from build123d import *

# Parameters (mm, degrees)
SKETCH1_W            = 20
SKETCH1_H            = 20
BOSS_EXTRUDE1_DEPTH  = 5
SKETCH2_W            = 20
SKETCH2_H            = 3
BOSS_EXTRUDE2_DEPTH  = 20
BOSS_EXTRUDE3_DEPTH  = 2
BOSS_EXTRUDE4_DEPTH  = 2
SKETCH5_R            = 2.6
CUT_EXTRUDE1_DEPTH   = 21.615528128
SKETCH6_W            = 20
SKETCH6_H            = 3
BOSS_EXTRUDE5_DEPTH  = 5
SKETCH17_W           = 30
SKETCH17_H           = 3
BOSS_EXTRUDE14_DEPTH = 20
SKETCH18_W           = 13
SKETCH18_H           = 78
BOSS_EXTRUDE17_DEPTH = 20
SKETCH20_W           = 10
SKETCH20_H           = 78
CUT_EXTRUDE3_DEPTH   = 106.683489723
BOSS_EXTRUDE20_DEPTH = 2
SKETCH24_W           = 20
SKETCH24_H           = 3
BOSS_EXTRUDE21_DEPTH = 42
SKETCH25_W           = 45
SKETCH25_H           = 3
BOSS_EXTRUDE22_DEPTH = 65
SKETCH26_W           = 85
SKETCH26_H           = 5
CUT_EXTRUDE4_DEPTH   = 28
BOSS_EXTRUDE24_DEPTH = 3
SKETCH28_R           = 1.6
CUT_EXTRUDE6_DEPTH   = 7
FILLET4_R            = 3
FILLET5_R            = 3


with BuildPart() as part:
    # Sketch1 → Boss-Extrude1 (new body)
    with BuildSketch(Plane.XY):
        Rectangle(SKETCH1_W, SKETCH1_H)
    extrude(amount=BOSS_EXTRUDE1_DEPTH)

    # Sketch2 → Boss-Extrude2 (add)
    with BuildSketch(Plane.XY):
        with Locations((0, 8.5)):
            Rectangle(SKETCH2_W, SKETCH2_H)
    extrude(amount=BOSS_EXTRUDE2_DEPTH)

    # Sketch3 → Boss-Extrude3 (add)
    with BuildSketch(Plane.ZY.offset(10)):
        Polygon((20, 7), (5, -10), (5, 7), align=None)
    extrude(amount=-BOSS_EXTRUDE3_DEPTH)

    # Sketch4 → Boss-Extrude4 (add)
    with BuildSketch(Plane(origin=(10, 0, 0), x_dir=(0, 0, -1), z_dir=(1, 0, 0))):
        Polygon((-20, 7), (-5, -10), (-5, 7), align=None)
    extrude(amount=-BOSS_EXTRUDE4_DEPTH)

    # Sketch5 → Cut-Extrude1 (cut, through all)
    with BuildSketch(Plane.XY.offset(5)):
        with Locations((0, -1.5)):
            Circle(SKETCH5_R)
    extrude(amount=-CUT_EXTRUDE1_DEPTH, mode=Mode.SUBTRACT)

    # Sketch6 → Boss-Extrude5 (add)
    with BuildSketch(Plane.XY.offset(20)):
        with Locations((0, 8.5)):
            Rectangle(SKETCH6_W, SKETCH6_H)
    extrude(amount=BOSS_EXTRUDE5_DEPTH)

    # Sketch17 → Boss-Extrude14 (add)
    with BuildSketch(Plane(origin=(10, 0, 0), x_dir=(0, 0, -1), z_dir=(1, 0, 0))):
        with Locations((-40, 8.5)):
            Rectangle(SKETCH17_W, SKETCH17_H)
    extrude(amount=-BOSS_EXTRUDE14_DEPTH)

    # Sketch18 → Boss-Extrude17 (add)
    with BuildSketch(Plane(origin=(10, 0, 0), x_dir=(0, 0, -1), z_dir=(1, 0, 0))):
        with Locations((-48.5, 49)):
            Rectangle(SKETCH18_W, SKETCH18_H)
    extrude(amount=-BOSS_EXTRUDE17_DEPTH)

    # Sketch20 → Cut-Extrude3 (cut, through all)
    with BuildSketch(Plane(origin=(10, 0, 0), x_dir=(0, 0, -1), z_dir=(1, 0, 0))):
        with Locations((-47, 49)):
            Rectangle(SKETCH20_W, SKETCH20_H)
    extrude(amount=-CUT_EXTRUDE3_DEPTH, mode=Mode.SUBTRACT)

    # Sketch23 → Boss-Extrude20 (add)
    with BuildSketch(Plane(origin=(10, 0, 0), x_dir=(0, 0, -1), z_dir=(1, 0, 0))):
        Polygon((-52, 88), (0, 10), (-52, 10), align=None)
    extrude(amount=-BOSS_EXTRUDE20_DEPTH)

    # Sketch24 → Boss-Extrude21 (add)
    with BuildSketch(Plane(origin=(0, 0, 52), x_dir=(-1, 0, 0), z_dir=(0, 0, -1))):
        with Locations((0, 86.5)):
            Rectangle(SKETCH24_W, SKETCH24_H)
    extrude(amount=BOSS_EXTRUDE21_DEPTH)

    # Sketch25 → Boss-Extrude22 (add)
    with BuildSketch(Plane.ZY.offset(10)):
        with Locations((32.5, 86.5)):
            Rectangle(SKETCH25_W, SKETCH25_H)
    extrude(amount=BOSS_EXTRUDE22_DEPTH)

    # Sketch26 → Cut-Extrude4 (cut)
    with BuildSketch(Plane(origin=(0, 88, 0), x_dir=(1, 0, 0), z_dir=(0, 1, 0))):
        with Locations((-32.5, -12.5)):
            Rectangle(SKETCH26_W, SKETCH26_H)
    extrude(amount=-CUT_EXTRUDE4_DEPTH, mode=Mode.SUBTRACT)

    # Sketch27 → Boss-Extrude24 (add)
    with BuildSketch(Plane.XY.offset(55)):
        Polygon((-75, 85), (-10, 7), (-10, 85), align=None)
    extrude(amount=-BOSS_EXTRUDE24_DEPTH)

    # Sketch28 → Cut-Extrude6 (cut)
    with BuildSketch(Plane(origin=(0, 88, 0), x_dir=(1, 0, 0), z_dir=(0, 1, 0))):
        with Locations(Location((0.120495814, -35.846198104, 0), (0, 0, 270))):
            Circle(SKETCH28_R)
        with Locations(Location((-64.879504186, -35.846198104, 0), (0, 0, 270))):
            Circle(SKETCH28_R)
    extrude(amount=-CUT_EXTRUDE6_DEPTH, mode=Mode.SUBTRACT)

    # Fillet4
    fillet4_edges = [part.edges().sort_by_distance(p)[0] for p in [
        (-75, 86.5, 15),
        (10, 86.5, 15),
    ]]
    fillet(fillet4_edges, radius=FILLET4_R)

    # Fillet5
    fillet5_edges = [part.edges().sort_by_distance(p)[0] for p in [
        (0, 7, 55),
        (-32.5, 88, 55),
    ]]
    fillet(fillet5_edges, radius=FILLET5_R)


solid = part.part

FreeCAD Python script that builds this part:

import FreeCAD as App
import Part
import Sketcher

V = App.Vector


def edges_at(feature, points):
    """Names of the edges that pass closest to the given points."""
    edges = feature.Shape.Edges
    near = lambda p: min(range(len(edges)), key=lambda i: edges[i].distToShape(Part.Vertex(*p))[0])
    return sorted({f"Edge{near(p) + 1}" for p in points})

doc = App.newDocument("Part")
body = doc.addObject("PartDesign::Body", "Body")

# Sketch on XY plane
sketch1 = body.newObject("Sketcher::SketchObject", "Sketch")
sketch1.AttachmentSupport = (doc.getObject("XY_Plane"), [""])
sketch1.MapMode = "FlatFace"
sketch1.addGeometry([
    Part.LineSegment(V(-10, 10, 0), V(-10, -10, 0)),
    Part.LineSegment(V(-10, -10, 0), V(10, -10, 0)),
    Part.LineSegment(V(10, -10, 0), V(10, 10, 0)),
    Part.LineSegment(V(10, 10, 0), V(-10, 10, 0)),
], False)
sketch1.addConstraint([
    Sketcher.Constraint("Coincident", 0, 2, 1, 1),
    Sketcher.Constraint("Coincident", 1, 2, 2, 1),
    Sketcher.Constraint("Coincident", 2, 2, 3, 1),
    Sketcher.Constraint("Coincident", 3, 2, 0, 1),
    Sketcher.Constraint("Vertical", 0),
    Sketcher.Constraint("Horizontal", 1),
    Sketcher.Constraint("Vertical", 2),
    Sketcher.Constraint("Horizontal", 3),
    Sketcher.Constraint("Symmetric", 0, 2, 2, 2, -1, 1),
    Sketcher.Constraint("Equal", 3, 0),
    Sketcher.Constraint("DistanceX", 1, 1, 1, 2, 20.0),
])
pad1 = body.newObject("PartDesign::Pad", "Pad")
pad1.Profile = sketch1
pad1.Length = 5

# Sketch on XY plane
sketch2 = body.newObject("Sketcher::SketchObject", "Sketch001")
sketch2.AttachmentSupport = (doc.getObject("XY_Plane"), [""])
sketch2.MapMode = "FlatFace"
sketch2.addGeometry([
    Part.LineSegment(V(-10, 10, 0), V(-10, 7, 0)),
    Part.LineSegment(V(-10, 7, 0), V(10, 7, 0)),
    Part.LineSegment(V(10, 7, 0), V(10, 10, 0)),
    Part.LineSegment(V(10, 10, 0), V(-10, 10, 0)),
], False)
sketch2.addConstraint([
    Sketcher.Constraint("Coincident", 0, 2, 1, 1),
    Sketcher.Constraint("Coincident", 1, 2, 2, 1),
    Sketcher.Constraint("Coincident", 2, 2, 3, 1),
    Sketcher.Constraint("Coincident", 3, 2, 0, 1),
    Sketcher.Constraint("Vertical", 0),
    Sketcher.Constraint("Horizontal", 1),
    Sketcher.Constraint("Vertical", 2),
    Sketcher.Constraint("Horizontal", 3),
    Sketcher.Constraint("DistanceX", 1, 1, 1, 2, 20.0),
    Sketcher.Constraint("DistanceY", 0, 2, 0, 1, 3.0),
    Sketcher.Constraint("DistanceX", 0, 2, -1, 1, 10.0),
    Sketcher.Constraint("DistanceY", -1, 1, 0, 2, 7.0),
])
pad2 = body.newObject("PartDesign::Pad", "Pad001")
pad2.Profile = sketch2
pad2.Length = 20

# Sketch on YZ plane
sketch3 = body.newObject("Sketcher::SketchObject", "Sketch002")
sketch3.AttachmentSupport = (doc.getObject("YZ_Plane"), [""])
sketch3.MapMode = "FlatFace"
sketch3.AttachmentOffset = App.Placement(V(0, 0, -10), App.Rotation())
sketch3.addGeometry([
    Part.LineSegment(V(-10, 5, 0), V(7, 20, 0)),
    Part.LineSegment(V(7, 20, 0), V(7, 5, 0)),
    Part.LineSegment(V(7, 5, 0), V(-10, 5, 0)),
], False)
sketch3.addConstraint([
    Sketcher.Constraint("Coincident", 0, 2, 1, 1),
    Sketcher.Constraint("Coincident", 1, 2, 2, 1),
    Sketcher.Constraint("Coincident", 2, 2, 0, 1),
    Sketcher.Constraint("Vertical", 1),
    Sketcher.Constraint("Horizontal", 2),
    Sketcher.Constraint("DistanceX", 2, 2, 2, 1, 17.0),
    Sketcher.Constraint("DistanceY", 1, 2, 1, 1, 15.0),
    Sketcher.Constraint("DistanceX", -1, 1, 0, 2, 7.0),
    Sketcher.Constraint("DistanceY", -1, 1, 0, 2, 20.0),
])
pad3 = body.newObject("PartDesign::Pad", "Pad002")
pad3.Profile = sketch3
pad3.Length = 2

# Sketch on YZ plane
sketch4 = body.newObject("Sketcher::SketchObject", "Sketch003")
sketch4.AttachmentSupport = (doc.getObject("YZ_Plane"), [""])
sketch4.MapMode = "FlatFace"
sketch4.AttachmentOffset = App.Placement(V(0, 0, 10), App.Rotation())
sketch4.addGeometry([
    Part.LineSegment(V(7, 20, 0), V(-10, 5, 0)),
    Part.LineSegment(V(-10, 5, 0), V(7, 5, 0)),
    Part.LineSegment(V(7, 5, 0), V(7, 20, 0)),
], False)
sketch4.addConstraint([
    Sketcher.Constraint("Coincident", 0, 2, 1, 1),
    Sketcher.Constraint("Coincident", 1, 2, 2, 1),
    Sketcher.Constraint("Coincident", 2, 2, 0, 1),
    Sketcher.Constraint("Horizontal", 1),
    Sketcher.Constraint("Vertical", 2),
    Sketcher.Constraint("DistanceX", 1, 1, 1, 2, 17.0),
    Sketcher.Constraint("DistanceY", 2, 1, 2, 2, 15.0),
    Sketcher.Constraint("DistanceX", 0, 2, -1, 1, 10.0),
    Sketcher.Constraint("DistanceY", -1, 1, 0, 2, 5.0),
])
pad4 = body.newObject("PartDesign::Pad", "Pad003")
pad4.Profile = sketch4
pad4.Length = 2
pad4.Reversed = True

# Sketch on XY plane
sketch5 = body.newObject("Sketcher::SketchObject", "Sketch004")
sketch5.AttachmentSupport = (doc.getObject("XY_Plane"), [""])
sketch5.MapMode = "FlatFace"
sketch5.AttachmentOffset = App.Placement(V(0, 0, 5), App.Rotation())
sketch5.addGeometry(Part.Circle(V(0, -1.5, 0), V(0, 0, 1), 2.6), False)
sketch5.addConstraint([
    Sketcher.Constraint("PointOnObject", 0, 3, -2),
    Sketcher.Constraint("Diameter", 0, 5.2),
    Sketcher.Constraint("DistanceY", 0, 3, -1, 1, 1.5),
])
pocket1 = body.newObject("PartDesign::Pocket", "Pocket")
pocket1.Profile = sketch5
pocket1.Type = "ThroughAll"

# Sketch on XY plane
sketch6 = body.newObject("Sketcher::SketchObject", "Sketch005")
sketch6.AttachmentSupport = (doc.getObject("XY_Plane"), [""])
sketch6.MapMode = "FlatFace"
sketch6.AttachmentOffset = App.Placement(V(0, 0, 20), App.Rotation())
sketch6.addGeometry([
    Part.LineSegment(V(-10, 10, 0), V(-10, 7, 0)),
    Part.LineSegment(V(-10, 7, 0), V(10, 7, 0)),
    Part.LineSegment(V(10, 7, 0), V(10, 10, 0)),
    Part.LineSegment(V(10, 10, 0), V(-10, 10, 0)),
], False)
sketch6.addConstraint([
    Sketcher.Constraint("Coincident", 0, 2, 1, 1),
    Sketcher.Constraint("Coincident", 1, 2, 2, 1),
    Sketcher.Constraint("Coincident", 2, 2, 3, 1),
    Sketcher.Constraint("Coincident", 3, 2, 0, 1),
    Sketcher.Constraint("Vertical", 0),
    Sketcher.Constraint("Horizontal", 1),
    Sketcher.Constraint("Vertical", 2),
    Sketcher.Constraint("Horizontal", 3),
    Sketcher.Constraint("DistanceX", 1, 1, 1, 2, 20.0),
    Sketcher.Constraint("DistanceY", 0, 2, 0, 1, 3.0),
    Sketcher.Constraint("DistanceX", 0, 2, -1, 1, 10.0),
    Sketcher.Constraint("DistanceY", -1, 1, 0, 2, 7.0),
])
pad5 = body.newObject("PartDesign::Pad", "Pad004")
pad5.Profile = sketch6
pad5.Length = 5

# Sketch on YZ plane
sketch7 = body.newObject("Sketcher::SketchObject", "Sketch006")
sketch7.AttachmentSupport = (doc.getObject("YZ_Plane"), [""])
sketch7.MapMode = "FlatFace"
sketch7.AttachmentOffset = App.Placement(V(0, 0, 10), App.Rotation())
sketch7.addGeometry([
    Part.LineSegment(V(10, 55, 0), V(7, 55, 0)),
    Part.LineSegment(V(7, 55, 0), V(7, 25, 0)),
    Part.LineSegment(V(7, 25, 0), V(10, 25, 0)),
    Part.LineSegment(V(10, 25, 0), V(10, 55, 0)),
], False)
sketch7.addConstraint([
    Sketcher.Constraint("Coincident", 0, 2, 1, 1),
    Sketcher.Constraint("Coincident", 1, 2, 2, 1),
    Sketcher.Constraint("Coincident", 2, 2, 3, 1),
    Sketcher.Constraint("Coincident", 3, 2, 0, 1),
    Sketcher.Constraint("Horizontal", 0),
    Sketcher.Constraint("Vertical", 1),
    Sketcher.Constraint("Horizontal", 2),
    Sketcher.Constraint("Vertical", 3),
    Sketcher.Constraint("DistanceX", 0, 2, 0, 1, 3.0),
    Sketcher.Constraint("DistanceY", 1, 2, 1, 1, 30.0),
    Sketcher.Constraint("DistanceX", -1, 1, 0, 2, 7.0),
    Sketcher.Constraint("DistanceY", -1, 1, 0, 2, 55.0),
])
pad6 = body.newObject("PartDesign::Pad", "Pad005")
pad6.Profile = sketch7
pad6.Length = 20
pad6.Reversed = True

# Sketch on YZ plane
sketch8 = body.newObject("Sketcher::SketchObject", "Sketch007")
sketch8.AttachmentSupport = (doc.getObject("YZ_Plane"), [""])
sketch8.MapMode = "FlatFace"
sketch8.AttachmentOffset = App.Placement(V(0, 0, 10), App.Rotation())
sketch8.addGeometry([
    Part.LineSegment(V(88, 55, 0), V(10, 55, 0)),
    Part.LineSegment(V(10, 55, 0), V(10, 42, 0)),
    Part.LineSegment(V(10, 42, 0), V(88, 42, 0)),
    Part.LineSegment(V(88, 42, 0), V(88, 55, 0)),
], False)
sketch8.addConstraint([
    Sketcher.Constraint("Coincident", 0, 2, 1, 1),
    Sketcher.Constraint("Coincident", 1, 2, 2, 1),
    Sketcher.Constraint("Coincident", 2, 2, 3, 1),
    Sketcher.Constraint("Coincident", 3, 2, 0, 1),
    Sketcher.Constraint("Horizontal", 0),
    Sketcher.Constraint("Vertical", 1),
    Sketcher.Constraint("Horizontal", 2),
    Sketcher.Constraint("Vertical", 3),
    Sketcher.Constraint("DistanceX", 0, 2, 0, 1, 78.0),
    Sketcher.Constraint("DistanceY", 1, 2, 1, 1, 13.0),
    Sketcher.Constraint("DistanceX", -1, 1, 0, 2, 10.0),
    Sketcher.Constraint("DistanceY", -1, 1, 0, 2, 55.0),
])
pad7 = body.newObject("PartDesign::Pad", "Pad006")
pad7.Profile = sketch8
pad7.Length = 20
pad7.Reversed = True

# Sketch on YZ plane
sketch9 = body.newObject("Sketcher::SketchObject", "Sketch008")
sketch9.AttachmentSupport = (doc.getObject("YZ_Plane"), [""])
sketch9.MapMode = "FlatFace"
sketch9.AttachmentOffset = App.Placement(V(0, 0, 10), App.Rotation())
sketch9.addGeometry([
    Part.LineSegment(V(88, 52, 0), V(10, 52, 0)),
    Part.LineSegment(V(10, 52, 0), V(10, 42, 0)),
    Part.LineSegment(V(10, 42, 0), V(88, 42, 0)),
    Part.LineSegment(V(88, 42, 0), V(88, 52, 0)),
], False)
sketch9.addConstraint([
    Sketcher.Constraint("Coincident", 0, 2, 1, 1),
    Sketcher.Constraint("Coincident", 1, 2, 2, 1),
    Sketcher.Constraint("Coincident", 2, 2, 3, 1),
    Sketcher.Constraint("Coincident", 3, 2, 0, 1),
    Sketcher.Constraint("Horizontal", 0),
    Sketcher.Constraint("Vertical", 1),
    Sketcher.Constraint("Horizontal", 2),
    Sketcher.Constraint("Vertical", 3),
    Sketcher.Constraint("DistanceX", 0, 2, 0, 1, 78.0),
    Sketcher.Constraint("DistanceY", 1, 2, 1, 1, 10.0),
    Sketcher.Constraint("DistanceX", -1, 1, 0, 2, 10.0),
    Sketcher.Constraint("DistanceY", -1, 1, 0, 2, 52.0),
])
pocket2 = body.newObject("PartDesign::Pocket", "Pocket001")
pocket2.Profile = sketch9
pocket2.Type = "ThroughAll"

# Sketch on YZ plane
sketch10 = body.newObject("Sketcher::SketchObject", "Sketch009")
sketch10.AttachmentSupport = (doc.getObject("YZ_Plane"), [""])
sketch10.MapMode = "FlatFace"
sketch10.AttachmentOffset = App.Placement(V(0, 0, 10), App.Rotation())
sketch10.addGeometry([
    Part.LineSegment(V(10, 0, 0), V(88, 52, 0)),
    Part.LineSegment(V(88, 52, 0), V(10, 52, 0)),
    Part.LineSegment(V(10, 52, 0), V(10, 0, 0)),
], False)
sketch10.addConstraint([
    Sketcher.Constraint("Coincident", 0, 2, 1, 1),
    Sketcher.Constraint("Coincident", 1, 2, 2, 1),
    Sketcher.Constraint("Coincident", 2, 2, 0, 1),
    Sketcher.Constraint("Horizontal", 1),
    Sketcher.Constraint("Vertical", 2),
    Sketcher.Constraint("PointOnObject", 2, 2, -1),
    Sketcher.Constraint("DistanceX", 1, 2, 1, 1, 78.0),
    Sketcher.Constraint("DistanceY", 2, 2, 2, 1, 52.0),
    Sketcher.Constraint("DistanceX", -1, 1, 0, 2, 88.0),
])
pad8 = body.newObject("PartDesign::Pad", "Pad007")
pad8.Profile = sketch10
pad8.Length = 2
pad8.Reversed = True

# Sketch on XY plane
sketch11 = body.newObject("Sketcher::SketchObject", "Sketch010")
sketch11.AttachmentSupport = (doc.getObject("XY_Plane"), [""])
sketch11.MapMode = "FlatFace"
sketch11.AttachmentOffset = App.Placement(V(0, 0, 52), App.Rotation())
sketch11.addGeometry([
    Part.LineSegment(V(10, 88, 0), V(10, 85, 0)),
    Part.LineSegment(V(10, 85, 0), V(-10, 85, 0)),
    Part.LineSegment(V(-10, 85, 0), V(-10, 88, 0)),
    Part.LineSegment(V(-10, 88, 0), V(10, 88, 0)),
], False)
sketch11.addConstraint([
    Sketcher.Constraint("Coincident", 0, 2, 1, 1),
    Sketcher.Constraint("Coincident", 1, 2, 2, 1),
    Sketcher.Constraint("Coincident", 2, 2, 3, 1),
    Sketcher.Constraint("Coincident", 3, 2, 0, 1),
    Sketcher.Constraint("Vertical", 0),
    Sketcher.Constraint("Horizontal", 1),
    Sketcher.Constraint("Vertical", 2),
    Sketcher.Constraint("Horizontal", 3),
    Sketcher.Constraint("DistanceX", 1, 2, 1, 1, 20.0),
    Sketcher.Constraint("DistanceY", 0, 2, 0, 1, 3.0),
    Sketcher.Constraint("DistanceX", -1, 1, 0, 2, 10.0),
    Sketcher.Constraint("DistanceY", -1, 1, 0, 2, 85.0),
])
pad9 = body.newObject("PartDesign::Pad", "Pad008")
pad9.Profile = sketch11
pad9.Length = 42
pad9.Reversed = True

# Sketch on YZ plane
sketch12 = body.newObject("Sketcher::SketchObject", "Sketch011")
sketch12.AttachmentSupport = (doc.getObject("YZ_Plane"), [""])
sketch12.MapMode = "FlatFace"
sketch12.AttachmentOffset = App.Placement(V(0, 0, -10), App.Rotation())
sketch12.addGeometry([
    Part.LineSegment(V(88, 10, 0), V(85, 10, 0)),
    Part.LineSegment(V(85, 10, 0), V(85, 55, 0)),
    Part.LineSegment(V(85, 55, 0), V(88, 55, 0)),
    Part.LineSegment(V(88, 55, 0), V(88, 10, 0)),
], False)
sketch12.addConstraint([
    Sketcher.Constraint("Coincident", 0, 2, 1, 1),
    Sketcher.Constraint("Coincident", 1, 2, 2, 1),
    Sketcher.Constraint("Coincident", 2, 2, 3, 1),
    Sketcher.Constraint("Coincident", 3, 2, 0, 1),
    Sketcher.Constraint("Horizontal", 0),
    Sketcher.Constraint("Vertical", 1),
    Sketcher.Constraint("Horizontal", 2),
    Sketcher.Constraint("Vertical", 3),
    Sketcher.Constraint("DistanceX", 0, 2, 0, 1, 3.0),
    Sketcher.Constraint("DistanceY", 1, 1, 1, 2, 45.0),
    Sketcher.Constraint("DistanceX", -1, 1, 0, 2, 85.0),
    Sketcher.Constraint("DistanceY", -1, 1, 0, 2, 10.0),
])
pad10 = body.newObject("PartDesign::Pad", "Pad009")
pad10.Profile = sketch12
pad10.Length = 65
pad10.Reversed = True

# Sketch on XZ plane
sketch13 = body.newObject("Sketcher::SketchObject", "Sketch012")
sketch13.AttachmentSupport = (doc.getObject("XZ_Plane"), [""])
sketch13.MapMode = "FlatFace"
sketch13.AttachmentOffset = App.Placement(V(0, 0, -88), App.Rotation())
sketch13.addGeometry([
    Part.LineSegment(V(-75, 10, 0), V(-75, 15, 0)),
    Part.LineSegment(V(-75, 15, 0), V(10, 15, 0)),
    Part.LineSegment(V(10, 15, 0), V(10, 10, 0)),
    Part.LineSegment(V(10, 10, 0), V(-75, 10, 0)),
], False)
sketch13.addConstraint([
    Sketcher.Constraint("Coincident", 0, 2, 1, 1),
    Sketcher.Constraint("Coincident", 1, 2, 2, 1),
    Sketcher.Constraint("Coincident", 2, 2, 3, 1),
    Sketcher.Constraint("Coincident", 3, 2, 0, 1),
    Sketcher.Constraint("Vertical", 0),
    Sketcher.Constraint("Horizontal", 1),
    Sketcher.Constraint("Vertical", 2),
    Sketcher.Constraint("Horizontal", 3),
    Sketcher.Constraint("DistanceX", 1, 1, 1, 2, 85.0),
    Sketcher.Constraint("DistanceY", 0, 1, 0, 2, 5.0),
    Sketcher.Constraint("DistanceX", 0, 2, -1, 1, 75.0),
    Sketcher.Constraint("DistanceY", -1, 1, 0, 2, 15.0),
])
pocket3 = body.newObject("PartDesign::Pocket", "Pocket002")
pocket3.Profile = sketch13
pocket3.Length = 28
pocket3.Reversed = True

# Sketch on XY plane
sketch14 = body.newObject("Sketcher::SketchObject", "Sketch013")
sketch14.AttachmentSupport = (doc.getObject("XY_Plane"), [""])
sketch14.MapMode = "FlatFace"
sketch14.AttachmentOffset = App.Placement(V(0, 0, 55), App.Rotation())
sketch14.addGeometry([
    Part.LineSegment(V(-75, 85, 0), V(-10, 7, 0)),
    Part.LineSegment(V(-10, 7, 0), V(-10, 85, 0)),
    Part.LineSegment(V(-10, 85, 0), V(-75, 85, 0)),
], False)
sketch14.addConstraint([
    Sketcher.Constraint("Coincident", 0, 2, 1, 1),
    Sketcher.Constraint("Coincident", 1, 2, 2, 1),
    Sketcher.Constraint("Coincident", 2, 2, 0, 1),
    Sketcher.Constraint("Vertical", 1),
    Sketcher.Constraint("Horizontal", 2),
    Sketcher.Constraint("DistanceX", 2, 2, 2, 1, 65.0),
    Sketcher.Constraint("DistanceY", 1, 1, 1, 2, 78.0),
    Sketcher.Constraint("DistanceX", 0, 2, -1, 1, 10.0),
    Sketcher.Constraint("DistanceY", -1, 1, 0, 2, 7.0),
])
pad11 = body.newObject("PartDesign::Pad", "Pad010")
pad11.Profile = sketch14
pad11.Length = 3
pad11.Reversed = True

# Sketch on XZ plane
sketch15 = body.newObject("Sketcher::SketchObject", "Sketch014")
sketch15.AttachmentSupport = (doc.getObject("XZ_Plane"), [""])
sketch15.MapMode = "FlatFace"
sketch15.AttachmentOffset = App.Placement(V(0, 0, -88), App.Rotation())
sketch15.addGeometry([
    Part.Circle(V(0.1, 35.8, 0), V(0, 0, 1), 1.6),
    Part.Circle(V(-64.9, 35.8, 0), V(0, 0, 1), 1.6),
], False)
sketch15.addConstraint([
    Sketcher.Constraint("Equal", 0, 1),
    Sketcher.Constraint("Horizontal", 0, 3, 1, 3),
    Sketcher.Constraint("Diameter", 0, 3.2),
    Sketcher.Constraint("DistanceX", 1, 3, 0, 3, 65.0),
    Sketcher.Constraint("DistanceY", -1, 1, 0, 3, 35.846198),
    Sketcher.Constraint("DistanceX", -1, 1, 0, 3, 0.120496),
])
pocket4 = body.newObject("PartDesign::Pocket", "Pocket003")
pocket4.Profile = sketch15
pocket4.Length = 7
pocket4.Reversed = True
doc.recompute()

fillet = body.newObject("PartDesign::Fillet", "Fillet")
fillet.Base = (pocket4, edges_at(pocket4, [(-75, 86.5, 15), (10, 86.5, 15)]))
fillet.Radius = 3
doc.recompute()

fillet2 = body.newObject("PartDesign::Fillet", "Fillet001")
fillet2.Base = (fillet, edges_at(fillet, [(0, 7, 55), (-32.5, 88, 55)]))
fillet2.Radius = 3

doc.recompute()
